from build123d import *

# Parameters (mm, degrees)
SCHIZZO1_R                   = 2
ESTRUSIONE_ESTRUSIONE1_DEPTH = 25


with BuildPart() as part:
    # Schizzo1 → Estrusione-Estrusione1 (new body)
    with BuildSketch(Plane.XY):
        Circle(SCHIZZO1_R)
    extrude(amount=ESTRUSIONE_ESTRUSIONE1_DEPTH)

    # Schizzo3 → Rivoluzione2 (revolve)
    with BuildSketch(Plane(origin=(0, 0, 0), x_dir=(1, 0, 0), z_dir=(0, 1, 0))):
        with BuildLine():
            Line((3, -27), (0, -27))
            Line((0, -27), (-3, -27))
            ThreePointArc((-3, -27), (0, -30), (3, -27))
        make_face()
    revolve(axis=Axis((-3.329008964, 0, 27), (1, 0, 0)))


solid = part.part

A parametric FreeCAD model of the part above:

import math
import FreeCAD as App
import Part
import Sketcher
from FreeCAD import Vector

doc = App.newDocument("Part")
params = doc.addObject("Spreadsheet::Sheet", "Params")
for row, (alias, value) in enumerate([
    ("sketch1_diameter", "4 mm"),
    ("pad1_length", "25 mm"),
    ("sketch2_radius", "3 mm"),
    ("revolution_angle", "360 deg"),
], start=1):
    params.set(f"A{row}", alias)
    params.set(f"B{row}", "=" + value)
    params.setAlias(f"B{row}", alias)

body = doc.addObject("PartDesign::Body", "Body")

sketch1 = body.newObject("Sketcher::SketchObject", "Sketch")
sketch1.AttachmentSupport = (doc.getObject("XY_Plane"), [""])
sketch1.MapMode = "FlatFace"
sketch1.addGeometry(Part.Circle(Vector(0, 0, 0), Vector(0, 0, 1), 2), False)
sketch1.addConstraint(Sketcher.Constraint("Coincident", 0, 3, -1, 1))
sketch1.addConstraint(Sketcher.Constraint("Diameter", 0, 4.0))
sketch1.setExpression("Constraints[1]", "Params.sketch1_diameter")
pad1 = body.newObject("PartDesign::Pad", "Pad")
pad1.Profile = sketch1
pad1.setExpression("Length", "Params.pad1_length")

sketch2 = body.newObject("Sketcher::SketchObject", "Sketch001")
sketch2.AttachmentSupport = (doc.getObject("XZ_Plane"), [""])
sketch2.MapMode = "FlatFace"
sketch2.addGeometry(Part.LineSegment(Vector(3, 27, 0), Vector(-3, 27, 0)), False)
sketch2.addGeometry(Part.ArcOfCircle(Part.Circle(Vector(0, 27, 0), Vector(0, 0, 1), 3), math.radians(0), math.radians(180)), False)
sketch2.addGeometry(Part.LineSegment(Vector(-3, 27, 0), Vector(3, 27, 0)), True)
sketch2.addConstraint(Sketcher.Constraint("Coincident", 0, 1, 1, 1))
sketch2.addConstraint(Sketcher.Constraint("Coincident", 1, 2, 0, 2))
sketch2.addConstraint(Sketcher.Constraint("Horizontal", 0))
sketch2.addConstraint(Sketcher.Constraint("Horizontal", 2))
sketch2.addConstraint(Sketcher.Constraint("Coincident", 2, 1, 1, 2))
sketch2.addConstraint(Sketcher.Constraint("PointOnObject", 1, 3, -2))
sketch2.addConstraint(Sketcher.Constraint("Horizontal", 1, 3, 0, 1))
sketch2.addConstraint(Sketcher.Constraint("Equal", 0, 2))
sketch2.addConstraint(Sketcher.Constraint("Radius", 1, 3.0))
sketch2.addConstraint(Sketcher.Constraint("DistanceY", -1, 1, 1, 3, 27.0))
sketch2.setExpression("Constraints[8]", "Params.sketch2_radius")
revolution = body.newObject("PartDesign::Revolution", "Revolution")
revolution.Profile = sketch2
revolution.ReferenceAxis = (sketch2, ["Axis0"])
revolution.setExpression("Angle", "Params.revolution_angle")

doc.recompute()
